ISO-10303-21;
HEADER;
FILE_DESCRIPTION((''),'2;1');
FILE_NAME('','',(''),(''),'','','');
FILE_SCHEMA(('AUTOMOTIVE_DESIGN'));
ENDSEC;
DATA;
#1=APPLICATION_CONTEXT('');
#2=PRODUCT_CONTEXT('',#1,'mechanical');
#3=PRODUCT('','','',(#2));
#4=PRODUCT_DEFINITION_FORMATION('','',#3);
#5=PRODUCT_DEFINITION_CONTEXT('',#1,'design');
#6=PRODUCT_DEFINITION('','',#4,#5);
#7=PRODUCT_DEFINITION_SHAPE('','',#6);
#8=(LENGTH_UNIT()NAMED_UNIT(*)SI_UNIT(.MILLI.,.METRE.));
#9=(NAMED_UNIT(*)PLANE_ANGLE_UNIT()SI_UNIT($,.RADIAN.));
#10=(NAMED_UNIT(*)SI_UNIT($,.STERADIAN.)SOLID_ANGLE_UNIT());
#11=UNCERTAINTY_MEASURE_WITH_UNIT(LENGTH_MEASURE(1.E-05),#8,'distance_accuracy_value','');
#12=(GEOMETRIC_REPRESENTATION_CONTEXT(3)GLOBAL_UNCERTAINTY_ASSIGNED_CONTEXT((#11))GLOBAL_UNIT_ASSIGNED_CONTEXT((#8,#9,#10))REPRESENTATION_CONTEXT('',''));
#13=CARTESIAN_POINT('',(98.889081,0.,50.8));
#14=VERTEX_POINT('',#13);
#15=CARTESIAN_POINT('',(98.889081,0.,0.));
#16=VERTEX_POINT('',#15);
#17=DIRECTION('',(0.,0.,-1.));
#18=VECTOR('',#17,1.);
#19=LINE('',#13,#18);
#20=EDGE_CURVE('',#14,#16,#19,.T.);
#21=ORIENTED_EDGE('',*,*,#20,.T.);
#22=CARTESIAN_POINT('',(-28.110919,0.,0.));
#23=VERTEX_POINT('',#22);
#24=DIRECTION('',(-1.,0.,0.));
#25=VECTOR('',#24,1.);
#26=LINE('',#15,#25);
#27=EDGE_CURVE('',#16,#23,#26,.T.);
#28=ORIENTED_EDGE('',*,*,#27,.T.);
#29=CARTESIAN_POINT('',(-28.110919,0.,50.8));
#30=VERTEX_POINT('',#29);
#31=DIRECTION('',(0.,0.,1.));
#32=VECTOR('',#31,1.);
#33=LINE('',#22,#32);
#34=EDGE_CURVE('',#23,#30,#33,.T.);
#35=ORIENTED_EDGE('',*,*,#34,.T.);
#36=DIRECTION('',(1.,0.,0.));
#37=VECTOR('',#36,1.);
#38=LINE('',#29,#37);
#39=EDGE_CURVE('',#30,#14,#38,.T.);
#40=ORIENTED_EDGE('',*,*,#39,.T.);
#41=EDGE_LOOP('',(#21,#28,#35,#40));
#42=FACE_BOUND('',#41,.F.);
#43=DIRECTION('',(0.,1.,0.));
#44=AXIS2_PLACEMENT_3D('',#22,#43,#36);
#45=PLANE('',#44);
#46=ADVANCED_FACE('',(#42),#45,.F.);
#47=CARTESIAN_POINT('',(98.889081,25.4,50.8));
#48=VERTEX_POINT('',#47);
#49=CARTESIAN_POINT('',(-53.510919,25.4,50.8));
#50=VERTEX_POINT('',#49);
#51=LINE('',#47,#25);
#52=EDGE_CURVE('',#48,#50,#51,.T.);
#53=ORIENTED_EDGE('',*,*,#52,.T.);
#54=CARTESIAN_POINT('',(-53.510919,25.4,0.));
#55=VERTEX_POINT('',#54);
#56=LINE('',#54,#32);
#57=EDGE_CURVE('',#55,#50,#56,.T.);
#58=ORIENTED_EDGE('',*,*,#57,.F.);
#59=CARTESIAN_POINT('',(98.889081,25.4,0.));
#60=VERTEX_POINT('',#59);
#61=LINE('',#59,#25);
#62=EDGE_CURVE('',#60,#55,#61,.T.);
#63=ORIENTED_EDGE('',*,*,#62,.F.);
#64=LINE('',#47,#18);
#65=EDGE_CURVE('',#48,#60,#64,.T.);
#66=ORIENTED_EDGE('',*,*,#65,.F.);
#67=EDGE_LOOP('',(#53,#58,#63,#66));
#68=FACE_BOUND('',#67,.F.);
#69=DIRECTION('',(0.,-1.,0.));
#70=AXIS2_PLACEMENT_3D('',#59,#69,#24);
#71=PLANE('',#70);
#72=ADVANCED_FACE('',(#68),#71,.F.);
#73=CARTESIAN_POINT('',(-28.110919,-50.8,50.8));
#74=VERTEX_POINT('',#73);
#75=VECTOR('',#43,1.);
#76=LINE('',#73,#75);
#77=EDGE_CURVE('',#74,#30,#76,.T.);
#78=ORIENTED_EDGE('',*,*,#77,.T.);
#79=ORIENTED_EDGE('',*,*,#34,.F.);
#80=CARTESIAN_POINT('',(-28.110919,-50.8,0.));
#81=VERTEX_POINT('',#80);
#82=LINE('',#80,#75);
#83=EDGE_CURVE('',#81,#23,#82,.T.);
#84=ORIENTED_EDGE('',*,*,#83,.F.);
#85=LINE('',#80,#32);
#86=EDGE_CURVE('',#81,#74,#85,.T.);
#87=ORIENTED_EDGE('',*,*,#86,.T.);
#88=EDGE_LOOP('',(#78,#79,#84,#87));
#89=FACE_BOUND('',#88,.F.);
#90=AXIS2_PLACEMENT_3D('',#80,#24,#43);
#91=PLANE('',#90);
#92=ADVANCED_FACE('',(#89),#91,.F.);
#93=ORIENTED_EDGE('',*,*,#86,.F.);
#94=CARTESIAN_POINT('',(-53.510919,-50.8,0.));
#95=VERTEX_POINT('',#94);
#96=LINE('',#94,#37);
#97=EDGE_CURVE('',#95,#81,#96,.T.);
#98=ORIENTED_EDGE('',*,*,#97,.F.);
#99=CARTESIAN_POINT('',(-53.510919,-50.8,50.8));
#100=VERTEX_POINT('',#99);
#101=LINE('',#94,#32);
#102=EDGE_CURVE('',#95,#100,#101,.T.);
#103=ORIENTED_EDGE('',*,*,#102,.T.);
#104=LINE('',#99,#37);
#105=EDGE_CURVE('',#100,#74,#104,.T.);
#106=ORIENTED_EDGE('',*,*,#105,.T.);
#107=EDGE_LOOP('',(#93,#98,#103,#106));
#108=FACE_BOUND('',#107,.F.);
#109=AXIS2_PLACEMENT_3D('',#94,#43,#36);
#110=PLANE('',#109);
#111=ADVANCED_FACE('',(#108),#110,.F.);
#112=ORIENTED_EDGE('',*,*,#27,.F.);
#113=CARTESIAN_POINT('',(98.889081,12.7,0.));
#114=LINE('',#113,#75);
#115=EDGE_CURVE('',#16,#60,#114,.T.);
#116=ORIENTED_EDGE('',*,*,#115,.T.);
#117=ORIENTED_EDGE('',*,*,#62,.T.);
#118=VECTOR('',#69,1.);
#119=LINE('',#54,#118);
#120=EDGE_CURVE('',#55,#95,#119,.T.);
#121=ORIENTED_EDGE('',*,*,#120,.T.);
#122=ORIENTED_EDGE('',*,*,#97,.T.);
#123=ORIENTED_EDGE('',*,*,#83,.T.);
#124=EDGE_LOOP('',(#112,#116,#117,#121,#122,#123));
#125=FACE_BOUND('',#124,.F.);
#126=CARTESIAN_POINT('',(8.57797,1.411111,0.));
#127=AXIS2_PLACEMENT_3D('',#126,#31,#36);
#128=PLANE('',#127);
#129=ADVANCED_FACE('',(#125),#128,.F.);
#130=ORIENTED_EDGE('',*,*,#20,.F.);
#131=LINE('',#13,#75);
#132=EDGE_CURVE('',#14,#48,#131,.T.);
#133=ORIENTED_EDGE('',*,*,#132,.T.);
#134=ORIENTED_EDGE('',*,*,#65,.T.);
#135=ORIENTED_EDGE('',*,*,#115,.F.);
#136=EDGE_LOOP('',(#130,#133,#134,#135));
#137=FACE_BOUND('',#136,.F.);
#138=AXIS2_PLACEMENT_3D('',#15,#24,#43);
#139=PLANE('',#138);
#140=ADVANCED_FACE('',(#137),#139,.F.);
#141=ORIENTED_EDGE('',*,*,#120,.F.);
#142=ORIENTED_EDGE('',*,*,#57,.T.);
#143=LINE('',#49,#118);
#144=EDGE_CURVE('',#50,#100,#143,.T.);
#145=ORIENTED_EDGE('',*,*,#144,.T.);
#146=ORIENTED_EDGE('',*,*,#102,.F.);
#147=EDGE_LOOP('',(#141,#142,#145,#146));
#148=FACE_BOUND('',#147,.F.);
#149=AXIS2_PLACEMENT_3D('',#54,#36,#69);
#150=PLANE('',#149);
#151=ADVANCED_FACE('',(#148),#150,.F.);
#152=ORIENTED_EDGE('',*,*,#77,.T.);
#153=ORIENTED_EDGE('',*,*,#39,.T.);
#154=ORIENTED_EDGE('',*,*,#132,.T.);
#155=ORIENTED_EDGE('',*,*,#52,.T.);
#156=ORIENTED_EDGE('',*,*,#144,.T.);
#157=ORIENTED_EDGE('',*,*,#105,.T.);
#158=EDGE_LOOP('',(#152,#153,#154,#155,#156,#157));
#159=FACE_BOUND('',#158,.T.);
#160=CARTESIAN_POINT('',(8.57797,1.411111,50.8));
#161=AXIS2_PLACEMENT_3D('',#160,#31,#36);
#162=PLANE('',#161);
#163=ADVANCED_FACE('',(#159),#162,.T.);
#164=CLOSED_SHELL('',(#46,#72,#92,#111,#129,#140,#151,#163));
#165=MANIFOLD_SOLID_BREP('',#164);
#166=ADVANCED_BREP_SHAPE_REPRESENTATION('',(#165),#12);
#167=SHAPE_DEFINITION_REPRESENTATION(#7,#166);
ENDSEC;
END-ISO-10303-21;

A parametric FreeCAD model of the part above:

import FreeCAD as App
import Part
import Sketcher
Q = App.Units.Quantity


def add_polygon(sketch, points):
    """Adds a closed chain of lines whose ends are joined by coincident constraints."""
    first, n = sketch.GeometryCount, len(points)
    for a, b in zip(points, points[1:] + points[:1]):
        sketch.addGeometry(Part.LineSegment(App.Vector(*a, 0), App.Vector(*b, 0)), False)
    for i in range(n):
        sketch.addConstraint(Sketcher.Constraint("Coincident", first + i, 2, first + (i + 1) % n, 1))

doc = App.newDocument("Part")
body = doc.addObject("PartDesign::Body", "Body")

sketch1 = body.newObject("Sketcher::SketchObject", "Sketch")
sketch1.AttachmentSupport = (doc.getObject("XY_Plane"), [""])
sketch1.MapMode = "FlatFace"
add_polygon(sketch1, [(48, 25), (48, 0), (99, 0), (99, 25)])
sketch1.addConstraint([
    Sketcher.Constraint("Vertical", 0),
    Sketcher.Constraint("Horizontal", 1),
    Sketcher.Constraint("Vertical", 2),
    Sketcher.Constraint("Horizontal", 3),
    Sketcher.Constraint("PointOnObject", 0, 2, -1),
    Sketcher.Constraint("DistanceX", 1, 1, 1, 2, Q("2 in")),
    Sketcher.Constraint("DistanceY", 0, 2, 0, 1, Q("1 in")),
    Sketcher.Constraint("DistanceX", -1, 1, 0, 2, 48.089081),
])
pad1 = body.newObject("PartDesign::Pad", "Pad")
pad1.Profile = sketch1
pad1.Length = Q("1 in")

sketch2 = body.newObject("Sketcher::SketchObject", "Sketch001")
sketch2.AttachmentSupport = (doc.getObject("XY_Plane"), [""])
sketch2.MapMode = "FlatFace"
add_polygon(sketch2, [(-54, 25), (-54, -51), (-28, -51), (-28, 0), (99, 0), (99, 25)])
sketch2.addConstraint([
    Sketcher.Constraint("Vertical", 0),
    Sketcher.Constraint("Horizontal", 1),
    Sketcher.Constraint("Vertical", 2),
    Sketcher.Constraint("Horizontal", 3),
    Sketcher.Constraint("Vertical", 4),
    Sketcher.Constraint("Horizontal", 5),
    Sketcher.Constraint("PointOnObject", 2, 2, -1),
    Sketcher.Constraint("Equal", 1, 4),
    Sketcher.Constraint("DistanceX", 1, 1, 1, 2, Q("1 in")),
    Sketcher.Constraint("DistanceX", 3, 1, 3, 2, Q("5 in")),
    Sketcher.Constraint("DistanceY", 0, 2, 0, 1, Q("3 in")),
    Sketcher.Constraint("DistanceX", 0, 2, -1, 1, 53.510919),
])
pad2 = body.newObject("PartDesign::Pad", "Pad001")
pad2.Profile = sketch2
pad2.Length = Q("2 in")

doc.recompute()
